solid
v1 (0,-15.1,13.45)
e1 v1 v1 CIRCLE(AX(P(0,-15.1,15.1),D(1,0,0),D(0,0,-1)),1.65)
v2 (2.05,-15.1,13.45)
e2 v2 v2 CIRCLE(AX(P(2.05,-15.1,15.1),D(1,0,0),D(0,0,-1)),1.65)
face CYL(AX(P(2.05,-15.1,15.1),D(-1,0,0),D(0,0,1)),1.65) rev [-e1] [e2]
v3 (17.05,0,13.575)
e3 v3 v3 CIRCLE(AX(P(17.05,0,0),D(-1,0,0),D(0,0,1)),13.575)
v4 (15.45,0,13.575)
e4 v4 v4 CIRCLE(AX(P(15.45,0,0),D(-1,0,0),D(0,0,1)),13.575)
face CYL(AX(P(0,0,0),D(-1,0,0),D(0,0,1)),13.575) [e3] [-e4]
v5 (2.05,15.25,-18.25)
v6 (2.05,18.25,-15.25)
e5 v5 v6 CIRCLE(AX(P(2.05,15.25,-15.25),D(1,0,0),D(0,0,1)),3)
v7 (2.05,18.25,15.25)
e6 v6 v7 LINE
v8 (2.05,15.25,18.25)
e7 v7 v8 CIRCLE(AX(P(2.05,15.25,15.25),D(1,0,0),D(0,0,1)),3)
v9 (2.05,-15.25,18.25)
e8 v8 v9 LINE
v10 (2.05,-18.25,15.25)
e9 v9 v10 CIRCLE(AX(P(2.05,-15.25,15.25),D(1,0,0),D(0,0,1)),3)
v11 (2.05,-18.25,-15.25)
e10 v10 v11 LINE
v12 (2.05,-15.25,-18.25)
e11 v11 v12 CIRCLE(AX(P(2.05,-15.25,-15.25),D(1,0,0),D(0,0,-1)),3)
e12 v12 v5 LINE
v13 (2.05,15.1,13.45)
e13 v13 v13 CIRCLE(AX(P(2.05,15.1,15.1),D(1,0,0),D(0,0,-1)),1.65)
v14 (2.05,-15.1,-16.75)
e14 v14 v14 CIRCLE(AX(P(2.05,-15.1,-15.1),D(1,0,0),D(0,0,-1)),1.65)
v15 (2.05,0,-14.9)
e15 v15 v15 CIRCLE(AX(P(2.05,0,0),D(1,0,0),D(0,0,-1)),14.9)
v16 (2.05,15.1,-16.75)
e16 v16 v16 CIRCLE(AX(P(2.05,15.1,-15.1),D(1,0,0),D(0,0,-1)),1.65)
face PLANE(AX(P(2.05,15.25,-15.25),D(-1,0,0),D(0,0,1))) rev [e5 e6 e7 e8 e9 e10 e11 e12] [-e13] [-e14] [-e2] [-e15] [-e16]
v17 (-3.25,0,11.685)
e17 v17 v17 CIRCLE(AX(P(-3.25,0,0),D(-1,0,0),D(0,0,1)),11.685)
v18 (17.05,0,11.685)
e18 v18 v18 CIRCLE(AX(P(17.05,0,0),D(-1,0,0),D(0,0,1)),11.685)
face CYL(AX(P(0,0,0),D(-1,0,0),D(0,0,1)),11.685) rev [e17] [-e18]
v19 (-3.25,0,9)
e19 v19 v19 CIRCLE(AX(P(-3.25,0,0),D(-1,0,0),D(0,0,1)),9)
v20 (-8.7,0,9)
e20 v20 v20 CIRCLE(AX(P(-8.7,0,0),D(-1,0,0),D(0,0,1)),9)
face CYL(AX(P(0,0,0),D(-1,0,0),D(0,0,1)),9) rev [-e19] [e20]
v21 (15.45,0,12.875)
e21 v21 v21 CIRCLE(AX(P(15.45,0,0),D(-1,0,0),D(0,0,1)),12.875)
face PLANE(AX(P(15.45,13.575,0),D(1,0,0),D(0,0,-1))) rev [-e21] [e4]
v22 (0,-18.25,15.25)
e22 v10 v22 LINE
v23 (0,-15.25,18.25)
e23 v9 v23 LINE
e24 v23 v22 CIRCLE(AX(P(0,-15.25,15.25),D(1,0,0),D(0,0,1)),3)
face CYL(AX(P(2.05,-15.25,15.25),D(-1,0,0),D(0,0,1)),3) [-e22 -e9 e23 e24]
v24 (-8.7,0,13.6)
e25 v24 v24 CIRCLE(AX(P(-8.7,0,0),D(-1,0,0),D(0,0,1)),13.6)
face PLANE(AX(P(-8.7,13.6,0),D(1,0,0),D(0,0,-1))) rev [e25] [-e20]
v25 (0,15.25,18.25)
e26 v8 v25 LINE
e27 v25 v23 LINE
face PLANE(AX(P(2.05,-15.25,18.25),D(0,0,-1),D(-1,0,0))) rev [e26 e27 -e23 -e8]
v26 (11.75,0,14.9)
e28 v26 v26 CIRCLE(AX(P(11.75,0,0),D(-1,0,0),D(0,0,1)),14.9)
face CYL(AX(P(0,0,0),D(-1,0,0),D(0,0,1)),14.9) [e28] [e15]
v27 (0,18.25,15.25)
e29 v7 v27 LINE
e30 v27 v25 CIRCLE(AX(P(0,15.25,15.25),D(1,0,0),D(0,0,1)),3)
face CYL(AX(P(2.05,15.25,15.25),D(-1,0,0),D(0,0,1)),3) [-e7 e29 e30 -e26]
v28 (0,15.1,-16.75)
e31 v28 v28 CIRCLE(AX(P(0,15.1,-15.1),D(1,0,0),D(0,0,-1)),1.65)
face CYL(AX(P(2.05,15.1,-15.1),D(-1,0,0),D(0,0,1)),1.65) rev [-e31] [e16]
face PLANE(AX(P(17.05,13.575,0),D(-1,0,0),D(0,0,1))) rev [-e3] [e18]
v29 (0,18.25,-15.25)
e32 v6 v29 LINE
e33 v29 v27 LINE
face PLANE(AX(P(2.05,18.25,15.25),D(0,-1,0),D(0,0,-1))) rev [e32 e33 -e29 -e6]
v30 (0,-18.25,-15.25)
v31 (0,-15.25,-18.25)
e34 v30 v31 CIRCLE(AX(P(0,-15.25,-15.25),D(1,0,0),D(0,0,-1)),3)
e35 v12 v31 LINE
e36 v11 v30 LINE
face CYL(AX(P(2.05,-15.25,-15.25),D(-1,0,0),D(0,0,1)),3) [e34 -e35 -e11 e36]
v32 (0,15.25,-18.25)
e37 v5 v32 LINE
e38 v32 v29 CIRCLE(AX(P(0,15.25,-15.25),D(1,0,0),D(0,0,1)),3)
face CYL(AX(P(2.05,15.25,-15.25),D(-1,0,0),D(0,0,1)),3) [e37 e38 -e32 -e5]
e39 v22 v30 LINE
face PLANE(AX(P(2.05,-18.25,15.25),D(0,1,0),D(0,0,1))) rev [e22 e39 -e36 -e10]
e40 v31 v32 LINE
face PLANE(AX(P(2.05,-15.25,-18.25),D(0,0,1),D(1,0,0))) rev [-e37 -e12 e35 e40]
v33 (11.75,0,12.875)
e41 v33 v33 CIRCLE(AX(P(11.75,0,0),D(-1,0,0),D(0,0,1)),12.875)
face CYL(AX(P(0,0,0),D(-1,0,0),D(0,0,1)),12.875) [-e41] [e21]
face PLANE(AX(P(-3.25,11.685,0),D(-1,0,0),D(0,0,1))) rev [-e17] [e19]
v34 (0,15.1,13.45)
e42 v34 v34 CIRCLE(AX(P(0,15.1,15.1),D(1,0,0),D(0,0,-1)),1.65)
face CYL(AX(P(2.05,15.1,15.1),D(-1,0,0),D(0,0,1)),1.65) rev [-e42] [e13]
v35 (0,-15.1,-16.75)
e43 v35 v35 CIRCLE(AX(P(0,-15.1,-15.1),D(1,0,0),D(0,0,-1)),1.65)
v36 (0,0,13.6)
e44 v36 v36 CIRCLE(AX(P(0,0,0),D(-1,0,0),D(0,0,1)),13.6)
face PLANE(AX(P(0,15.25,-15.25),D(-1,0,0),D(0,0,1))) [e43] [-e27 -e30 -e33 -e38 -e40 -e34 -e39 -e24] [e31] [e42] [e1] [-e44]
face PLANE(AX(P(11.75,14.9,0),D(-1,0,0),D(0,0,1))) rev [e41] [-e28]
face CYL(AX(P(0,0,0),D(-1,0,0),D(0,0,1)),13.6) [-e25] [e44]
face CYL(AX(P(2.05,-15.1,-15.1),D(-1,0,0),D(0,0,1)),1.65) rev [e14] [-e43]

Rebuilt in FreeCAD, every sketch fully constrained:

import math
import FreeCAD as App
import Part
import Sketcher

V = App.Vector
Q = App.Units.Quantity

doc = App.newDocument("Part")
body = doc.addObject("PartDesign::Body", "Body")

sketch1 = body.newObject("Sketcher::SketchObject", "Sketch")
sketch1.AttachmentSupport = (doc.getObject("YZ_Plane"), [""])
sketch1.MapMode = "FlatFace"
sketch1.addGeometry([
    Part.LineSegment(V(-18.2, 15.2, 0), V(-18.2, -15.2, 0)),
    Part.ArcOfCircle(Part.Circle(V(-15.3, -15.3, 0), V(0, 0, 1), 3), math.radians(180), math.radians(270)),
    Part.LineSegment(V(-15.2, -18.2, 0), V(15.2, -18.2, 0)),
    Part.ArcOfCircle(Part.Circle(V(15.3, -15.3, 0), V(0, 0, 1), 3), math.radians(-90), math.radians(0)),
    Part.LineSegment(V(18.2, -15.2, 0), V(18.2, 15.2, 0)),
    Part.ArcOfCircle(Part.Circle(V(15.3, 15.3, 0), V(0, 0, 1), 3), math.radians(0), math.radians(90)),
    Part.LineSegment(V(15.2, 18.2, 0), V(-15.2, 18.2, 0)),
    Part.ArcOfCircle(Part.Circle(V(-15.3, 15.3, 0), V(0, 0, 1), 3), math.radians(90), math.radians(180)),
    Part.Circle(V(-15.1, 15.1, 0), V(0, 0, 1), 1.6),
    Part.Circle(V(-15.1, -15.1, 0), V(0, 0, 1), 1.6),
    Part.Circle(V(15.1, 15.1, 0), V(0, 0, 1), 1.6),
    Part.Circle(V(0, 0, 0), V(0, 0, 1), 14.9),
    Part.Circle(V(15.1, -15.1, 0), V(0, 0, 1), 1.6),
], False)
sketch1.addConstraint([
    Sketcher.Constraint("Tangent", 0, 2, 1, 1),
    Sketcher.Constraint("Tangent", 1, 2, 2, 1),
    Sketcher.Constraint("Tangent", 2, 2, 3, 1),
    Sketcher.Constraint("Tangent", 3, 2, 4, 1),
    Sketcher.Constraint("Tangent", 4, 2, 5, 1),
    Sketcher.Constraint("Tangent", 5, 2, 6, 1),
    Sketcher.Constraint("Tangent", 6, 2, 7, 1),
    Sketcher.Constraint("Tangent", 7, 2, 0, 1),
    Sketcher.Constraint("Vertical", 0),
    Sketcher.Constraint("Horizontal", 2),
    Sketcher.Constraint("Vertical", 4),
    Sketcher.Constraint("Horizontal", 6),
    Sketcher.Constraint("Coincident", 11, 3, -1, 1),
    Sketcher.Constraint("Equal", 1, 3),
    Sketcher.Constraint("Equal", 3, 5),
    Sketcher.Constraint("Equal", 5, 7),
    Sketcher.Constraint("Equal", 8, 9),
    Sketcher.Constraint("Equal", 9, 10),
    Sketcher.Constraint("Equal", 10, 12),
    Sketcher.Constraint("Symmetric", 1, 3, 5, 3, -1, 1),
    Sketcher.Constraint("Symmetric", 9, 3, 10, 3, -1, 1),
    Sketcher.Constraint("Symmetric", 8, 3, 12, 3, -1, 1),
    Sketcher.Constraint("Symmetric", 8, 3, 10, 3, -2),
    Sketcher.Constraint("Equal", 6, 0),
    Sketcher.Constraint("Radius", 1, Q("3 mm")),
    Sketcher.Constraint("Diameter", 8, Q("3.3 mm")),
    Sketcher.Constraint("Diameter", 11, Q("29.8 mm")),
    Sketcher.Constraint("DistanceX", 2, 1, 2, 2, Q("30.5 mm")),
    Sketcher.Constraint("DistanceX", 8, 3, -1, 1, Q("15.1 mm")),
    Sketcher.Constraint("DistanceY", -1, 1, 8, 3, Q("15.1 mm")),
])
pad1 = body.newObject("PartDesign::Pad", "Pad")
pad1.Profile = sketch1
pad1.Length = 2.05

sketch2 = body.newObject("Sketcher::SketchObject", "Sketch001")
sketch2.AttachmentSupport = (doc.getObject("XY_Plane"), [""])
sketch2.MapMode = "FlatFace"
sketch2.addGeometry([
    Part.LineSegment(V(11.8, 14.9, 0), V(0, 14.9, 0)),
    Part.LineSegment(V(0, 14.9, 0), V(0, 13.6, 0)),
    Part.LineSegment(V(0, 13.6, 0), V(-8.7, 13.6, 0)),
    Part.LineSegment(V(-8.7, 13.6, 0), V(-8.7, 9, 0)),
    Part.LineSegment(V(-8.7, 9, 0), V(-3.2, 9, 0)),
    Part.LineSegment(V(-3.2, 9, 0), V(-3.2, 11.7, 0)),
    Part.LineSegment(V(-3.2, 11.7, 0), V(17.1, 11.7, 0)),
    Part.LineSegment(V(17.1, 11.7, 0), V(17.1, 13.6, 0)),
    Part.LineSegment(V(17.1, 13.6, 0), V(15.4, 13.6, 0)),
    Part.LineSegment(V(15.4, 13.6, 0), V(15.4, 12.9, 0)),
    Part.LineSegment(V(15.4, 12.9, 0), V(11.8, 12.9, 0)),
    Part.LineSegment(V(11.8, 12.9, 0), V(11.8, 14.9, 0)),
], False)
sketch2.addConstraint([
    Sketcher.Constraint("Coincident", 0, 2, 1, 1),
    Sketcher.Constraint("Coincident", 1, 2, 2, 1),
    Sketcher.Constraint("Coincident", 2, 2, 3, 1),
    Sketcher.Constraint("Coincident", 3, 2, 4, 1),
    Sketcher.Constraint("Coincident", 4, 2, 5, 1),
    Sketcher.Constraint("Coincident", 5, 2, 6, 1),
    Sketcher.Constraint("Coincident", 6, 2, 7, 1),
    Sketcher.Constraint("Coincident", 7, 2, 8, 1),
    Sketcher.Constraint("Coincident", 8, 2, 9, 1),
    Sketcher.Constraint("Coincident", 9, 2, 10, 1),
    Sketcher.Constraint("Coincident", 10, 2, 11, 1),
    Sketcher.Constraint("Coincident", 11, 2, 0, 1),
    Sketcher.Constraint("Horizontal", 0),
    Sketcher.Constraint("Vertical", 1),
    Sketcher.Constraint("Horizontal", 2),
    Sketcher.Constraint("Vertical", 3),
    Sketcher.Constraint("Horizontal", 4),
    Sketcher.Constraint("Vertical", 5),
    Sketcher.Constraint("Horizontal", 6),
    Sketcher.Constraint("Vertical", 7),
    Sketcher.Constraint("Horizontal", 8),
    Sketcher.Constraint("Vertical", 9),
    Sketcher.Constraint("Horizontal", 10),
    Sketcher.Constraint("Vertical", 11),
    Sketcher.Constraint("PointOnObject", 0, 2, -2),
    Sketcher.Constraint("DistanceX", 2, 2, 2, 1, Q("8.7 mm")),
    Sketcher.Constraint("DistanceX", 6, 1, 6, 2, Q("20.3 mm")),
    Sketcher.Constraint("DistanceX", 8, 2, 8, 1, Q("1.6 mm")),
    Sketcher.Constraint("DistanceX", 10, 2, 10, 1, Q("3.7 mm")),
    Sketcher.Constraint("DistanceY", 1, 2, 1, 1, Q("1.3 mm")),
    Sketcher.Constraint("DistanceY", 3, 2, 3, 1, Q("4.6 mm")),
    Sketcher.Constraint("DistanceY", 9, 2, 9, 1, Q("0.7 mm")),
    Sketcher.Constraint("DistanceY", -1, 1, 3, 2, Q("9 mm")),
    Sketcher.Constraint("DistanceX", 0, 2, 0, 1, Q("11.75 mm")),
    Sketcher.Constraint("DistanceY", 7, 1, 7, 2, Q("1.89 mm")),
    Sketcher.Constraint("DistanceY", 5, 1, 5, 2, Q("2.685 mm")),
])
revolution = body.newObject("PartDesign::Revolution", "Revolution")
revolution.Profile = sketch2
revolution.ReferenceAxis = (sketch2, ["H_Axis"])
revolution.Angle = 360

doc.recompute()
